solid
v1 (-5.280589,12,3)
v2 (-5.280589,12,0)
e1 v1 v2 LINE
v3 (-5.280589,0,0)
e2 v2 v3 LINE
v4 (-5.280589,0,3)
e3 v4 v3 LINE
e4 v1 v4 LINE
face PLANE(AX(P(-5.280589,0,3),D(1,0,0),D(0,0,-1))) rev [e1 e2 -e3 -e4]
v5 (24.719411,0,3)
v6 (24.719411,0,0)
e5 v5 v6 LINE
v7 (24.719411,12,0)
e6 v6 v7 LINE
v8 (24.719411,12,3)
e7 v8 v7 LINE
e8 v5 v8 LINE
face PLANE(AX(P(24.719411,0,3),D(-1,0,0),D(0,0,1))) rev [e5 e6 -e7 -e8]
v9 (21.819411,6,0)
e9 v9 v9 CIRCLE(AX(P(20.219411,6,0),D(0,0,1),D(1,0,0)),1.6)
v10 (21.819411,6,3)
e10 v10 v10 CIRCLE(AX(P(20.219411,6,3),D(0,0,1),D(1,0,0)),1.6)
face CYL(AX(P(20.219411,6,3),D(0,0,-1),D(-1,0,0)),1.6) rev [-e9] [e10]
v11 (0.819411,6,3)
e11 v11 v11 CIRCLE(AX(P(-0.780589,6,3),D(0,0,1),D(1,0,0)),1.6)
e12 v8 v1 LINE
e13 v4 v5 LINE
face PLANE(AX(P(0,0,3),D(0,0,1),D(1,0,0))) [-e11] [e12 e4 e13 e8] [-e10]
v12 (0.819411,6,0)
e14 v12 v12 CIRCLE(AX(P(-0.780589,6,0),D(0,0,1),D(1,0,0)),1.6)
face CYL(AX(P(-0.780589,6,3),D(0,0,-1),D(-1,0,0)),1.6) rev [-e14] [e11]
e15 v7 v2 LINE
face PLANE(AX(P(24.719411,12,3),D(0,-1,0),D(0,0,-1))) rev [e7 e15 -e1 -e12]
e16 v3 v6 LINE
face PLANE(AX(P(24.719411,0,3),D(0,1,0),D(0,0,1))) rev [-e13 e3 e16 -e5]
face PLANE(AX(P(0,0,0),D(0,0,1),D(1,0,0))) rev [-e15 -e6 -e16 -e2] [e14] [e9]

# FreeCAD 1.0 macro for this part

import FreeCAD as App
import Part
import Sketcher
Q = App.Units.Quantity


def add_polygon(sketch, points):
    """Adds a closed chain of lines whose ends are joined by coincident constraints."""
    first, n = sketch.GeometryCount, len(points)
    for a, b in zip(points, points[1:] + points[:1]):
        sketch.addGeometry(Part.LineSegment(App.Vector(*a, 0), App.Vector(*b, 0)), False)
    for i in range(n):
        sketch.addConstraint(Sketcher.Constraint("Coincident", first + i, 2, first + (i + 1) % n, 1))

doc = App.newDocument("Part")
body = doc.addObject("PartDesign::Body", "Body")

# Sketch on XY plane
sketch1 = body.newObject("Sketcher::SketchObject", "Sketch")
sketch1.AttachmentSupport = (doc.getObject("XY_Plane"), [""])
sketch1.MapMode = "FlatFace"
add_polygon(sketch1, [(-5.3, 12), (-5.3, 0), (24.7, 0), (24.7, 12)])  # lines 0-3
sketch1.addGeometry(Part.Circle(App.Vector(-0.8, 6, 0), App.Vector(0, 0, 1), 1.6), False)  # 4
sketch1.addGeometry(Part.Circle(App.Vector(20.2, 6, 0), App.Vector(0, 0, 1), 1.6), False)  # 5
sketch1.addConstraint([
    Sketcher.Constraint("Vertical", 0),
    Sketcher.Constraint("Horizontal", 1),
    Sketcher.Constraint("Vertical", 2),
    Sketcher.Constraint("Horizontal", 3),
    Sketcher.Constraint("Equal", 4, 5),
    Sketcher.Constraint("PointOnObject", 0, 2, -1),
    Sketcher.Constraint("Horizontal", 4, 3, 5, 3),
    Sketcher.Constraint("Diameter", 4, Q("3.2 mm")),
    Sketcher.Constraint("DistanceX", 1, 1, 1, 2, Q("30 mm")),
    Sketcher.Constraint("DistanceY", 0, 2, 0, 1, Q("12 mm")),
    Sketcher.Constraint("DistanceY", -1, 1, 4, 3, Q("6 mm")),
    Sketcher.Constraint("DistanceX", 4, 3, 5, 3, Q("21 mm")),
    Sketcher.Constraint("DistanceX", 0, 2, 4, 3, Q("4.5 mm")),
    Sketcher.Constraint("DistanceX", 4, 3, -1, 1, Q("0.780589 mm")),
])
pad1 = body.newObject("PartDesign::Pad", "Pad")
pad1.Profile = sketch1
pad1.Length = 3

doc.recompute()
